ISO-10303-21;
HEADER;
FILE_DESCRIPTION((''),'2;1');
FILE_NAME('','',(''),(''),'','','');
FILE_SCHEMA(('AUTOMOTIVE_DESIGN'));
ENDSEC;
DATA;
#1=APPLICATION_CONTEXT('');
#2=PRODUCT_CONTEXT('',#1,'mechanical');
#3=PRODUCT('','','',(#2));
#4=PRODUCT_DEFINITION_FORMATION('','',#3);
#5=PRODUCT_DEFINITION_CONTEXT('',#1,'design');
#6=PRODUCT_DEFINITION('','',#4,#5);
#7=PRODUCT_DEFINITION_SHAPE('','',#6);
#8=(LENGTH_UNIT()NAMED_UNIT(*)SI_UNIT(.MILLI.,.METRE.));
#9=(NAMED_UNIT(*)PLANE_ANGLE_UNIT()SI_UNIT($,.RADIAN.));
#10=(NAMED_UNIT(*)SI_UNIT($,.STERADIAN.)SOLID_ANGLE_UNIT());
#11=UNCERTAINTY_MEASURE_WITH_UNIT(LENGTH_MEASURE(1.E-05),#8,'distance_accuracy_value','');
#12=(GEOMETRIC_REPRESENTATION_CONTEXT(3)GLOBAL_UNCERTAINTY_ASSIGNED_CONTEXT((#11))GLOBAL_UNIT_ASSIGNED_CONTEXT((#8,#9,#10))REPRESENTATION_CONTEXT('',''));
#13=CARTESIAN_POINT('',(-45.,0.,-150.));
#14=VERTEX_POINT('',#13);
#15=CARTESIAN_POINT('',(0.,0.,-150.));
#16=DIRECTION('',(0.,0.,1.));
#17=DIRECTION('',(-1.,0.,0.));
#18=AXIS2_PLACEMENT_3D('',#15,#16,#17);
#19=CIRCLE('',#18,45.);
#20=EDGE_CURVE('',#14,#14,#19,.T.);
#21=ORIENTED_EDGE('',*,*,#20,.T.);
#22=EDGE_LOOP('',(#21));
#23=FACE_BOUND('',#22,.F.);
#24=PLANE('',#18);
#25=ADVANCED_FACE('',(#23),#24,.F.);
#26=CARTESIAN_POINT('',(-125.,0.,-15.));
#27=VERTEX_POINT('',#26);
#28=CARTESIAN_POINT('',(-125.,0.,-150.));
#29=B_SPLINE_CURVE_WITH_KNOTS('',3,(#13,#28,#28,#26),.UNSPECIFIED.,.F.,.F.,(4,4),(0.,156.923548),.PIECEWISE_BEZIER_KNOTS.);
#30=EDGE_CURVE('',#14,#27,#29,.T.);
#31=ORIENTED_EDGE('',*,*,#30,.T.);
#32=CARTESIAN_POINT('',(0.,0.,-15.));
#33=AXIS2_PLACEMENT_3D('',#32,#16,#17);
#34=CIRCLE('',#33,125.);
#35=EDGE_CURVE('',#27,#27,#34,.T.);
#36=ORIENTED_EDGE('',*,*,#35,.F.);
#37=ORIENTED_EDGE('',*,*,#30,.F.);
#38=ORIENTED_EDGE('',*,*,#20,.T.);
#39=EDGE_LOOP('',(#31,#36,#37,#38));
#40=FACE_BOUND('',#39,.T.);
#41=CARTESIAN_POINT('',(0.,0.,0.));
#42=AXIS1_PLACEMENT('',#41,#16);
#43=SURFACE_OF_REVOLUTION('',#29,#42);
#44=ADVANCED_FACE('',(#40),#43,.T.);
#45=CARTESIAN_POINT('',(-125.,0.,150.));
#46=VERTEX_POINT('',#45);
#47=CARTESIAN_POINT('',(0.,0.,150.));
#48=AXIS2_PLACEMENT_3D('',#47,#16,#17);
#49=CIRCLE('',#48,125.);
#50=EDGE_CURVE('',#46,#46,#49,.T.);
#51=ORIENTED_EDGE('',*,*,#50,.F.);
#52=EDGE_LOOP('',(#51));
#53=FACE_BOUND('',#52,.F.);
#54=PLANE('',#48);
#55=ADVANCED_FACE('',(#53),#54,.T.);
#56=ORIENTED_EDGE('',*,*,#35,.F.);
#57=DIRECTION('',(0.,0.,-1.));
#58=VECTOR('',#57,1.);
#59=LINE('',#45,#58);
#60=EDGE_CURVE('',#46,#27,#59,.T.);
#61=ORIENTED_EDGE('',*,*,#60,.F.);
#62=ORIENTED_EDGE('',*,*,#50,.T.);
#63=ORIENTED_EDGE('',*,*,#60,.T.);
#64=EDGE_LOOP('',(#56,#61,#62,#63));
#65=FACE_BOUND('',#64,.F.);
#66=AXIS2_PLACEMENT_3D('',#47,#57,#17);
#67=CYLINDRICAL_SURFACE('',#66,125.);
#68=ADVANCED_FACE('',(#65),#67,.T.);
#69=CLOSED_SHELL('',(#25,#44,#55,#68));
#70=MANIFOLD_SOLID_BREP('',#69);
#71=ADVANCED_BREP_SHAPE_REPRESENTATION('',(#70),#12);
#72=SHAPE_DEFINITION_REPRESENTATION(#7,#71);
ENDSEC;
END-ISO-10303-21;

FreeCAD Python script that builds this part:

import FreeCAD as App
import Part
import Sketcher
from FreeCAD import Vector

doc = App.newDocument("Part")
body = doc.addObject("PartDesign::Body", "Body")

# Sketch on XZ plane
sketch1 = body.newObject("Sketcher::SketchObject", "Sketch")
sketch1.AttachmentSupport = (doc.getObject("XZ_Plane"), [""])
sketch1.MapMode = "FlatFace"
sketch1.addGeometry([
    Part.LineSegment(Vector(0, -150, 0), Vector(0, 150, 0)),  # 0
    Part.LineSegment(Vector(0, 150, 0), Vector(-125, 150, 0)),  # 1
    Part.LineSegment(Vector(-125, 150, 0), Vector(-125, -15, 0)),  # 2
    Part.BSplineCurve([Vector(-45, -150, 0), Vector(-125, -150, 0), Vector(-125, -150, 0), Vector(-125, -15, 0)], [4, 4], [0, 156.923548], False, 3, [1, 1, 1, 1], False),  # 3
    Part.LineSegment(Vector(-45, -150, 0), Vector(0, -150, 0)),  # 4
], False)
sketch1.addConstraint([
    Sketcher.Constraint("Block", 3),
    Sketcher.Constraint("Coincident", 0, 2, 1, 1),
    Sketcher.Constraint("Coincident", 1, 2, 2, 1),
    Sketcher.Constraint("Coincident", 2, 2, 3, 2),
    Sketcher.Constraint("Coincident", 3, 1, 4, 1),
    Sketcher.Constraint("Coincident", 4, 2, 0, 1),
    Sketcher.Constraint("Vertical", 0),
    Sketcher.Constraint("Horizontal", 1),
    Sketcher.Constraint("Vertical", 2),
    Sketcher.Constraint("Horizontal", 4),
    Sketcher.Constraint("Symmetric", 0, 2, 4, 2, -1, 1),
])
revolution = body.newObject("PartDesign::Revolution", "Revolution")
revolution.Profile = sketch1
revolution.ReferenceAxis = (sketch1, ["V_Axis"])
revolution.Angle = 360

doc.recompute()
